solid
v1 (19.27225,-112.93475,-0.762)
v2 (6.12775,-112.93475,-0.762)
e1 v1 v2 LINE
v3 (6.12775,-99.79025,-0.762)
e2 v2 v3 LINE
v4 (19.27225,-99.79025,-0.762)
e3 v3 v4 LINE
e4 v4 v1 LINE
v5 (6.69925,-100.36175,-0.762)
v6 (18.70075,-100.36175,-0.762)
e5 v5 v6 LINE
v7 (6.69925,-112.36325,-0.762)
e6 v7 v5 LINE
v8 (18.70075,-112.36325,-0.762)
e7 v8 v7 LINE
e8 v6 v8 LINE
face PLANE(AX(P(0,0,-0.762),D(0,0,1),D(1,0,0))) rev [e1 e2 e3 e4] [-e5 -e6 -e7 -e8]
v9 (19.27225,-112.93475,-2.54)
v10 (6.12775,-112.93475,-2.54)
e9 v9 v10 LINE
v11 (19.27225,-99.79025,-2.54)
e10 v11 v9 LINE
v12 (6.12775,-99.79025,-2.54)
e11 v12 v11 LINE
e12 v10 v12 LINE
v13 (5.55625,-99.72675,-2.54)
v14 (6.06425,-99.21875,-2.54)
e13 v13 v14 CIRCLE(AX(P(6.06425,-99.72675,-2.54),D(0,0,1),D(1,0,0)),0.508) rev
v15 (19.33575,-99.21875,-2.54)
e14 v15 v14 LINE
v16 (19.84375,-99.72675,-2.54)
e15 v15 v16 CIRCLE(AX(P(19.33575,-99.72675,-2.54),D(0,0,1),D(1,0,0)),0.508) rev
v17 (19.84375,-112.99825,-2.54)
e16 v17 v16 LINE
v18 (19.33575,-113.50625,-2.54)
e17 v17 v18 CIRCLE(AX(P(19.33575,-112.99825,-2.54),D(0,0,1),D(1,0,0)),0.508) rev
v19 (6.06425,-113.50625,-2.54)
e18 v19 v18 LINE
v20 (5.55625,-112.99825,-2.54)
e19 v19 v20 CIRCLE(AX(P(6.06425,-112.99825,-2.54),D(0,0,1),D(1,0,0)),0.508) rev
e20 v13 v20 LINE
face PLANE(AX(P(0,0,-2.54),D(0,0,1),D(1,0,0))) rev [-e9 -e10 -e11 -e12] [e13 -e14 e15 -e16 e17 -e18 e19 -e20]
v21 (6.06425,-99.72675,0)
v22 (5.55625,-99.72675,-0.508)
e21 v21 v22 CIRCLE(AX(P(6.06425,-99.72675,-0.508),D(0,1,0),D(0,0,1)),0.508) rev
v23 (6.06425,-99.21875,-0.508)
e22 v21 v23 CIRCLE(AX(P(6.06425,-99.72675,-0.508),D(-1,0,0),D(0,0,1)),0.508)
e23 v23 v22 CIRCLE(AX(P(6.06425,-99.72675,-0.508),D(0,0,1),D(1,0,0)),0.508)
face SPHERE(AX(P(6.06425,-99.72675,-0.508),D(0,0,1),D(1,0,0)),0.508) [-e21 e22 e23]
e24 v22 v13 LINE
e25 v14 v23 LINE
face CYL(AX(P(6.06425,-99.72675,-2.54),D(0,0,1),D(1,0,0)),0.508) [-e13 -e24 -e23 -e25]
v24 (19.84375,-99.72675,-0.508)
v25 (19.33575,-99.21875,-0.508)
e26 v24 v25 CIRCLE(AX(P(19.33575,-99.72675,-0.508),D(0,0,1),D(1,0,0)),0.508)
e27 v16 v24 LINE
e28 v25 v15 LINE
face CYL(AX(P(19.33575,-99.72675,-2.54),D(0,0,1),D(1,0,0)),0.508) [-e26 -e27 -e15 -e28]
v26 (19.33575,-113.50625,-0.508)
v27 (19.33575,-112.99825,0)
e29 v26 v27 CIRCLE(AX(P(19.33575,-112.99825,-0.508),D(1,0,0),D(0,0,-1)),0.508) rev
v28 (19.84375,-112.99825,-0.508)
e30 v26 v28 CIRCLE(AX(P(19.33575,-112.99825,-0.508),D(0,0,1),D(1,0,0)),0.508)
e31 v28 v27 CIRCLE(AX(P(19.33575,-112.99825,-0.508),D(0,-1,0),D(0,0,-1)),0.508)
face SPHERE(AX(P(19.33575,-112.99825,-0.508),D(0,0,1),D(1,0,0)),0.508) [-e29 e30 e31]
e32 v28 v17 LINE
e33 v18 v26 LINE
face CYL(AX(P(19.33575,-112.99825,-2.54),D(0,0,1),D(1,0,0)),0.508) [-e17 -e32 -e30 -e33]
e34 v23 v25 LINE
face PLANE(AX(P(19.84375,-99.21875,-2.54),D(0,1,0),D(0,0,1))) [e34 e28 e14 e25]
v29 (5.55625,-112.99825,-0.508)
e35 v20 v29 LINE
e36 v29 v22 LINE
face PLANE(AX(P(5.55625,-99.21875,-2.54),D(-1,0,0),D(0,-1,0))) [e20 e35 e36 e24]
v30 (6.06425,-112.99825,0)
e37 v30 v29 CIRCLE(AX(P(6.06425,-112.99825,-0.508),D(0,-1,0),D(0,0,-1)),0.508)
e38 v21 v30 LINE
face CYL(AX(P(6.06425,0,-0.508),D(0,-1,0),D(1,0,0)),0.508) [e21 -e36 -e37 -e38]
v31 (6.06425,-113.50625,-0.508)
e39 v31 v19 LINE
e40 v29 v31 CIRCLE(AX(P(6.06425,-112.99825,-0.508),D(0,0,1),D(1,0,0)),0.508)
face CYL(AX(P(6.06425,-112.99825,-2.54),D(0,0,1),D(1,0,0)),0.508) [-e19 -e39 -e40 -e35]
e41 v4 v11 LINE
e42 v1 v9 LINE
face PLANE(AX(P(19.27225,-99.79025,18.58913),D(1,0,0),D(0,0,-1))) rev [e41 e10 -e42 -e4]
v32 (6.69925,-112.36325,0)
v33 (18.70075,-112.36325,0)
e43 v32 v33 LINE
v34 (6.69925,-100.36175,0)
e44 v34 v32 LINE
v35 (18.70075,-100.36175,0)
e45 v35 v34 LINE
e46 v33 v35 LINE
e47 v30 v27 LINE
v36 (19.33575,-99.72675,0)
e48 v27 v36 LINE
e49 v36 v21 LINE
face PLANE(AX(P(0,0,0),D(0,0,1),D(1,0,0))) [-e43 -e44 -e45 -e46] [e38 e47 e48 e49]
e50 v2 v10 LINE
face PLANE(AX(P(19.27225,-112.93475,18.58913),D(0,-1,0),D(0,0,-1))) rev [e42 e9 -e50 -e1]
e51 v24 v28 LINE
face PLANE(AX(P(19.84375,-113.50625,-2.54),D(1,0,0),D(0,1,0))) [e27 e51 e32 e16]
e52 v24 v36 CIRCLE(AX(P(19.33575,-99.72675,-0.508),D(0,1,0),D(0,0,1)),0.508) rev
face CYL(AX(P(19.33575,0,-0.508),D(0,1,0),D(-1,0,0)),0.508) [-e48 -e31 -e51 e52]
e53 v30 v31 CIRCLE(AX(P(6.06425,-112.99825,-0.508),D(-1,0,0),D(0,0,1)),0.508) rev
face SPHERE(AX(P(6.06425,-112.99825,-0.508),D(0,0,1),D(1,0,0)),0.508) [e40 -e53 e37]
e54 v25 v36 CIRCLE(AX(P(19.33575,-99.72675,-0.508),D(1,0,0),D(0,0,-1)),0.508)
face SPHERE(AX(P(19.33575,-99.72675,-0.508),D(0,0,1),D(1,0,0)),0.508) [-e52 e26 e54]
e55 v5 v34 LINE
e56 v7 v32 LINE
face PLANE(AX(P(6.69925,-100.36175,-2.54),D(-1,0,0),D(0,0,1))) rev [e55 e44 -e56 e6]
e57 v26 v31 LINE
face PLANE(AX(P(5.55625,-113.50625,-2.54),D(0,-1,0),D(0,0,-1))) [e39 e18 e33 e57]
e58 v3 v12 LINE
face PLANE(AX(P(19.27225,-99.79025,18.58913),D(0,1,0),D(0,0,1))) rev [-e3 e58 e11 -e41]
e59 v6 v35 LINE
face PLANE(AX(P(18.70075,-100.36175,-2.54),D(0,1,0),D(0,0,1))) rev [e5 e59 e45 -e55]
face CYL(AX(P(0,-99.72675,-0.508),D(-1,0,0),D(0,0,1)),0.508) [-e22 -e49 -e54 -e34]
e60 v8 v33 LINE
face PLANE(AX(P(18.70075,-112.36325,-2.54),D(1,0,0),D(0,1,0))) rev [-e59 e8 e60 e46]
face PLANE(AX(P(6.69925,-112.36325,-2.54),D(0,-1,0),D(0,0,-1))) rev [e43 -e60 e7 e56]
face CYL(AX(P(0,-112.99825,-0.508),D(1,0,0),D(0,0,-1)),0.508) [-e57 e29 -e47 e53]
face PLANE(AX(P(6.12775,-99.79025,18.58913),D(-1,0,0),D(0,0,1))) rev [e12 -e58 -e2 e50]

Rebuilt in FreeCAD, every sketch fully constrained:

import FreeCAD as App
import Part
import Sketcher
Q = App.Units.Quantity


def edges_at(feature, points):
    """Names of the edges that pass closest to the given points."""
    edges = feature.Shape.Edges
    near = lambda p: min(range(len(edges)), key=lambda i: edges[i].distToShape(Part.Vertex(*p))[0])
    return sorted({f"Edge{near(p) + 1}" for p in points})

doc = App.newDocument("Part")
body = doc.addObject("PartDesign::Body", "Body")

# Sketch on XY plane
sketch1 = doc.addObject("Sketcher::SketchObject", "Sketch")
body.addObject(sketch1)
sketch1.AttachmentSupport = (doc.XY_Plane, [""])
sketch1.MapMode = "FlatFace"
sketch1.addGeometry([
    Part.LineSegment(App.Vector(5.55625, -99.21875, 0), App.Vector(5.55625, -113.50625, 0)),  # 0
    Part.LineSegment(App.Vector(5.55625, -113.50625, 0), App.Vector(19.84375, -113.50625, 0)),  # 1
    Part.LineSegment(App.Vector(19.84375, -113.50625, 0), App.Vector(19.84375, -99.21875, 0)),  # 2
    Part.LineSegment(App.Vector(19.84375, -99.21875, 0), App.Vector(5.55625, -99.21875, 0)),  # 3
    Part.LineSegment(App.Vector(18.70075, -112.36325, 0), App.Vector(6.69925, -112.36325, 0)),  # 4
    Part.LineSegment(App.Vector(6.69925, -112.36325, 0), App.Vector(6.69925, -100.36175, 0)),  # 5
    Part.LineSegment(App.Vector(6.69925, -100.36175, 0), App.Vector(18.70075, -100.36175, 0)),  # 6
    Part.LineSegment(App.Vector(18.70075, -100.36175, 0), App.Vector(18.70075, -112.36325, 0)),  # 7
], False)
sketch1.addConstraint([
    Sketcher.Constraint("Coincident", 0, 2, 1, 1),
    Sketcher.Constraint("Coincident", 1, 2, 2, 1),
    Sketcher.Constraint("Coincident", 2, 2, 3, 1),
    Sketcher.Constraint("Coincident", 3, 2, 0, 1),
    Sketcher.Constraint("Coincident", 4, 2, 5, 1),
    Sketcher.Constraint("Coincident", 5, 2, 6, 1),
    Sketcher.Constraint("Coincident", 6, 2, 7, 1),
    Sketcher.Constraint("Coincident", 7, 2, 4, 1),
    Sketcher.Constraint("Vertical", 0),
    Sketcher.Constraint("Horizontal", 1),
    Sketcher.Constraint("Vertical", 2),
    Sketcher.Constraint("Horizontal", 3),
    Sketcher.Constraint("Horizontal", 4),
    Sketcher.Constraint("Vertical", 5),
    Sketcher.Constraint("Horizontal", 6),
    Sketcher.Constraint("Vertical", 7),
    Sketcher.Constraint("Equal", 3, 0),
    Sketcher.Constraint("Equal", 6, 5),
    Sketcher.Constraint("DistanceX", 1, 1, 1, 2, Q("0.5625 in")),
    Sketcher.Constraint("DistanceX", 4, 2, 4, 1, Q("0.4725 in")),
    Sketcher.Constraint("DistanceX", -1, 1, 0, 2, Q("0.21875 in")),
    Sketcher.Constraint("DistanceY", 0, 2, -1, 1, Q("4.46875 in")),
    Sketcher.Constraint("DistanceX", 0, 2, 4, 2, Q("0.045 in")),
    Sketcher.Constraint("DistanceY", 0, 2, 4, 2, Q("0.045 in")),
])
pad1 = doc.addObject("PartDesign::Pad", "Pad")
body.addObject(pad1)
pad1.Profile = sketch1
pad1.Length = Q("0.1 in")
pad1.Reversed = True

# Sketch on XY plane
sketch2 = doc.addObject("Sketcher::SketchObject", "Sketch001")
body.addObject(sketch2)
sketch2.AttachmentSupport = (doc.XY_Plane, [""])
sketch2.MapMode = "FlatFace"
sketch2.AttachmentOffset = App.Placement(App.Vector(0, 0, -0.1 * 25.4), App.Rotation())
sketch2.addGeometry([
    Part.LineSegment(App.Vector(19.27225, -99.79025, 0), App.Vector(19.27225, -112.93475, 0)),
    Part.LineSegment(App.Vector(19.27225, -112.93475, 0), App.Vector(6.12775, -112.93475, 0)),
    Part.LineSegment(App.Vector(6.12775, -112.93475, 0), App.Vector(6.12775, -99.79025, 0)),
    Part.LineSegment(App.Vector(6.12775, -99.79025, 0), App.Vector(19.27225, -99.79025, 0)),
], False)
sketch2.addConstraint([
    Sketcher.Constraint("Coincident", 0, 2, 1, 1),
    Sketcher.Constraint("Coincident", 1, 2, 2, 1),
    Sketcher.Constraint("Coincident", 2, 2, 3, 1),
    Sketcher.Constraint("Coincident", 3, 2, 0, 1),
    Sketcher.Constraint("Vertical", 0),
    Sketcher.Constraint("Horizontal", 1),
    Sketcher.Constraint("Vertical", 2),
    Sketcher.Constraint("Horizontal", 3),
    Sketcher.Constraint("Equal", 3, 0),
    Sketcher.Constraint("DistanceX", 1, 2, 1, 1, Q("0.5175 in")),
    Sketcher.Constraint("DistanceX", -1, 1, 0, 2, 19.27225),
    Sketcher.Constraint("DistanceY", 0, 2, -1, 1, 112.93475),
])
pocket1 = doc.addObject("PartDesign::Pocket", "Pocket")
body.addObject(pocket1)
pocket1.Profile = sketch2
pocket1.Length = Q("0.07 in")
pocket1.Reversed = True
doc.recompute()

fillet = doc.addObject("PartDesign::Fillet", "Fillet")
body.addObject(fillet)
fillet.Base = (pocket1, edges_at(pocket1, [
    (5.556, -106.362, 0),
    (12.7, -99.219, 0),
    (19.844, -106.362, 0),
    (12.7, -113.506, 0),
    (5.556, -113.506, -1.27),
    (5.556, -99.219, -1.27),
    (19.844, -99.219, -1.27),
    (19.844, -113.506, -1.27),
]))
fillet.Radius = Q("0.02 in")

doc.recompute()
